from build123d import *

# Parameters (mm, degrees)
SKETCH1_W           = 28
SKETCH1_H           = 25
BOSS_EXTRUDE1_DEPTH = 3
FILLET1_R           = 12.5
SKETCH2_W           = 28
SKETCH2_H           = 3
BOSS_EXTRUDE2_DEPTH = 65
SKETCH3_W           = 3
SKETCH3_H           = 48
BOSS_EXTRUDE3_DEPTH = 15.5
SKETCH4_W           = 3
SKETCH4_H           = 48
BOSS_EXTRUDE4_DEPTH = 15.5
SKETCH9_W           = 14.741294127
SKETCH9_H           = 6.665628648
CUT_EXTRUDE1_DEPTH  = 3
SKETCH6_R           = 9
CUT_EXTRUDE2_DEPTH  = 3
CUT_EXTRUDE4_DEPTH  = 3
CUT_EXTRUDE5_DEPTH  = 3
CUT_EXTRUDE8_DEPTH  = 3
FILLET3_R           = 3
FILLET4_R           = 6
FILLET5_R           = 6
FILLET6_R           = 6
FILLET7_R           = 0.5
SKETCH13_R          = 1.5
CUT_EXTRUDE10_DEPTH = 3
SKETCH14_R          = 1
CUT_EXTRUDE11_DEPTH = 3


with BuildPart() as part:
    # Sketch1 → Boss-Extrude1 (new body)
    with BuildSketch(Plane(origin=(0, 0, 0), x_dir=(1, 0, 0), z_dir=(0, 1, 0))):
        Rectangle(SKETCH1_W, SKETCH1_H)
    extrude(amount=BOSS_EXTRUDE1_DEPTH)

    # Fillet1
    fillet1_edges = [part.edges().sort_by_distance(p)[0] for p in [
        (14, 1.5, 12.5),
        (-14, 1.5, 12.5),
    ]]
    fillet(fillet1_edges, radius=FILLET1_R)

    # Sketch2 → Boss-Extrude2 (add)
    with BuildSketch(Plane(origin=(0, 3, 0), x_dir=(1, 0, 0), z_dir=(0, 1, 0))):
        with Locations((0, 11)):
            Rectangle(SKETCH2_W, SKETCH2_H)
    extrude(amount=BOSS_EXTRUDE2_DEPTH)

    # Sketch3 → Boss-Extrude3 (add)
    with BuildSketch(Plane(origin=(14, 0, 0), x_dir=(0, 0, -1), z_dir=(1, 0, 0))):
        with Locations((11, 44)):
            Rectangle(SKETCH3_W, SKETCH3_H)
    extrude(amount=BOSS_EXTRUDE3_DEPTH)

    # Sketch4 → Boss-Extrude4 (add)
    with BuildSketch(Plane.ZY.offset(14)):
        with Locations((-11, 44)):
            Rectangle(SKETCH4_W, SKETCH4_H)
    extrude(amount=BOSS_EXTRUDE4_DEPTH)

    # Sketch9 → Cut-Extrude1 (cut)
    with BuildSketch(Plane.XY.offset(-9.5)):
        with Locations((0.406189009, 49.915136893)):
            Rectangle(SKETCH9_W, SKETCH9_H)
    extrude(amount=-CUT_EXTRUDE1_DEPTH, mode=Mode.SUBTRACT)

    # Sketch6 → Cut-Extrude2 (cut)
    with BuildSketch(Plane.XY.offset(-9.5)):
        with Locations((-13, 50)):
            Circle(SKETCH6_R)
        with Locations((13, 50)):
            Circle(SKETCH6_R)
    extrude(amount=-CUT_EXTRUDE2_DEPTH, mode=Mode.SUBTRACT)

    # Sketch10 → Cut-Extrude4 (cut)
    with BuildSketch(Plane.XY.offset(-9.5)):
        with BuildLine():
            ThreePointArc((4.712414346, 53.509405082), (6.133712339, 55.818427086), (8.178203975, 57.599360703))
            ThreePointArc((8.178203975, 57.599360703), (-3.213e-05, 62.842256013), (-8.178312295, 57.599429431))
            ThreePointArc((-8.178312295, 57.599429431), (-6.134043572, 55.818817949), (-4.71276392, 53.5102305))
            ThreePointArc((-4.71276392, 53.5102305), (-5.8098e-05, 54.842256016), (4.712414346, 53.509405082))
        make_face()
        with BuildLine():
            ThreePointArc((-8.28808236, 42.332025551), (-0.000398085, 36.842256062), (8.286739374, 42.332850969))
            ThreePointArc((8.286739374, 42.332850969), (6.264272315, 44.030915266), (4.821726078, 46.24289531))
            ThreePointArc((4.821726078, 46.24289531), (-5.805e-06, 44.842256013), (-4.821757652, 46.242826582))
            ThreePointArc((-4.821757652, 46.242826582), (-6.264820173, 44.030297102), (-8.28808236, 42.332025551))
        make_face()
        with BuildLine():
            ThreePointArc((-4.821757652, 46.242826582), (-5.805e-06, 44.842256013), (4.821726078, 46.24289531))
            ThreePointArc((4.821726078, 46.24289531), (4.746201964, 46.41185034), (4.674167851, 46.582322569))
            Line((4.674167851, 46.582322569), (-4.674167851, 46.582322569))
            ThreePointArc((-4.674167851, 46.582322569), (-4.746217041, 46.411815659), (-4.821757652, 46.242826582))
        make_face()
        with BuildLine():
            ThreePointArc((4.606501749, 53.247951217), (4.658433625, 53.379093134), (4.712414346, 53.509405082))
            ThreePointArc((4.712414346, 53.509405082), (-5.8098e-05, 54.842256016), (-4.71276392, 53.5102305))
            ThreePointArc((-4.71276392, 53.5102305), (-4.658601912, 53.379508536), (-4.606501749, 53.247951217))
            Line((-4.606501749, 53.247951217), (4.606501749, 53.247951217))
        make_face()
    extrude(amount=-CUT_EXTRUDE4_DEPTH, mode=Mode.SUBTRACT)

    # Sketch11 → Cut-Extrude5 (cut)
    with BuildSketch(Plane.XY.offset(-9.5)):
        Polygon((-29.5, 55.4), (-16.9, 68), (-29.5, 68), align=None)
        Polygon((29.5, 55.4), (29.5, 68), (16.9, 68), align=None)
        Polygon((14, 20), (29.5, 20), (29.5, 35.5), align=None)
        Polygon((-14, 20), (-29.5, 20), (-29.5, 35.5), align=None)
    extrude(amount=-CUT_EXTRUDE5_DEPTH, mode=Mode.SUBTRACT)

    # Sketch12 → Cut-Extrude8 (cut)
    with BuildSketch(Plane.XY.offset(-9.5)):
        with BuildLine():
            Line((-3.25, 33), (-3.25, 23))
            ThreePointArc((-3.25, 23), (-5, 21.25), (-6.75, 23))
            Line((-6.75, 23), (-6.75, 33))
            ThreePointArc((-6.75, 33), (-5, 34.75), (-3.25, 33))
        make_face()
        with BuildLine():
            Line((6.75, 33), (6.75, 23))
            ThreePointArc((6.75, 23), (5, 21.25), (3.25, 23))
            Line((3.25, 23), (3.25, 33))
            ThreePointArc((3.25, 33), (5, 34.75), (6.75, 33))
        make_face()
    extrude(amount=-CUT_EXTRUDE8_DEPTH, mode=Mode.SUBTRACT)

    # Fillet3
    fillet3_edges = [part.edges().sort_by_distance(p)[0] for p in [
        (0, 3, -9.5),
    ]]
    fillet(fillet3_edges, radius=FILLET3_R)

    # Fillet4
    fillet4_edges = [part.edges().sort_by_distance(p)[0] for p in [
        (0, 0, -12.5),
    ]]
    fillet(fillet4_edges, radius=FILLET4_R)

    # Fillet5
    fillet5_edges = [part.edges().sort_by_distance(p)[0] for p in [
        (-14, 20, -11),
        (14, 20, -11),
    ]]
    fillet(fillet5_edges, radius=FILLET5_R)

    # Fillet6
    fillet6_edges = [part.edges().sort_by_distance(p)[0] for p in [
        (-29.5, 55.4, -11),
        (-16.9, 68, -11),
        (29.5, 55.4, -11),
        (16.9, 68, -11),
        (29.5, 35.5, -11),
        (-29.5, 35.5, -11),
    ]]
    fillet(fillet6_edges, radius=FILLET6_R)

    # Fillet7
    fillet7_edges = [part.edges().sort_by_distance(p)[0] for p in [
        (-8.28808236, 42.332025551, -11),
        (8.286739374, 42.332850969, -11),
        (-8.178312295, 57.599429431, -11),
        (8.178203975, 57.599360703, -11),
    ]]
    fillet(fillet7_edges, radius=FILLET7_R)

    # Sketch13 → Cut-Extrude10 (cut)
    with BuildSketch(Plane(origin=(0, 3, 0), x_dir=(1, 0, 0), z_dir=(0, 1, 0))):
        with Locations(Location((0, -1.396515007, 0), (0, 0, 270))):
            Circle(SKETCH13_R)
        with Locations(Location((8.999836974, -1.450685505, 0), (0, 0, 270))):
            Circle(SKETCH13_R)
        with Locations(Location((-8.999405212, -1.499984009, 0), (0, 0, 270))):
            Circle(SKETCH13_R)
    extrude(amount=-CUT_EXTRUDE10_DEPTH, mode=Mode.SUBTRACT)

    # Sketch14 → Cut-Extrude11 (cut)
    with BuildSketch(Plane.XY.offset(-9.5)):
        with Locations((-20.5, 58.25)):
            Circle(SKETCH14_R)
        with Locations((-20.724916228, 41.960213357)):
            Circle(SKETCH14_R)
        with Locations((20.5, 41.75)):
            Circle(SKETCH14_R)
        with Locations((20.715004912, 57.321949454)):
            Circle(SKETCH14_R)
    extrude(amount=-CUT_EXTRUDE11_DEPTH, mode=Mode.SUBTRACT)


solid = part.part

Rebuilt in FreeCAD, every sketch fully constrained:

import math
import FreeCAD as App
import Part
import Sketcher
from FreeCAD import Vector
Q = App.Units.Quantity


def edges_at(feature, points):
    """Names of the edges that pass closest to the given points."""
    edges = feature.Shape.Edges
    near = lambda p: min(range(len(edges)), key=lambda i: edges[i].distToShape(Part.Vertex(*p))[0])
    return sorted({f"Edge{near(p) + 1}" for p in points})


def add_polygon(sketch, points):
    """Adds a closed chain of lines whose ends are joined by coincident constraints."""
    first, n = sketch.GeometryCount, len(points)
    for a, b in zip(points, points[1:] + points[:1]):
        sketch.addGeometry(Part.LineSegment(App.Vector(*a, 0), App.Vector(*b, 0)), False)
    for i in range(n):
        sketch.addConstraint(Sketcher.Constraint("Coincident", first + i, 2, first + (i + 1) % n, 1))

doc = App.newDocument("Part")
body = doc.addObject("PartDesign::Body", "Body")

# Sketch on XZ plane
sketch1 = doc.addObject("Sketcher::SketchObject", "Sketch")
body.addObject(sketch1)
sketch1.AttachmentSupport = (doc.XZ_Plane, [""])
sketch1.MapMode = "FlatFace"
add_polygon(sketch1, [(-14, -12), (-14, 12), (14, 12), (14, -12)])  # lines 0-3
sketch1.addConstraint(Sketcher.Constraint("Vertical", 0))
sketch1.addConstraint(Sketcher.Constraint("Horizontal", 1))
sketch1.addConstraint(Sketcher.Constraint("Vertical", 2))
sketch1.addConstraint(Sketcher.Constraint("Horizontal", 3))
sketch1.addConstraint(Sketcher.Constraint("Symmetric", 0, 2, 2, 2, -1, 1))
sketch1.addConstraint(Sketcher.Constraint("DistanceX", 1, 1, 1, 2, Q("28 mm")))
sketch1.addConstraint(Sketcher.Constraint("DistanceY", 0, 1, 0, 2, Q("25 mm")))
pad1 = doc.addObject("PartDesign::Pad", "Pad")
body.addObject(pad1)
pad1.Profile = sketch1
pad1.Length = 3
pad1.Reversed = True
doc.recompute()

fillet = doc.addObject("PartDesign::Fillet", "Fillet")
body.addObject(fillet)
fillet.Base = (pad1, edges_at(pad1, [(14, 1.5, 12.5), (-14, 1.5, 12.5)]))
fillet.Radius = 12.5

# Sketch on XZ plane
sketch2 = doc.addObject("Sketcher::SketchObject", "Sketch001")
body.addObject(sketch2)
sketch2.AttachmentSupport = (doc.XZ_Plane, [""])
sketch2.MapMode = "FlatFace"
sketch2.AttachmentOffset = App.Placement(Vector(0, 0, -3), App.Rotation())
add_polygon(sketch2, [(-14, -12.5), (-14, -9.5), (14, -9.5), (14, -12.5)])  # lines 0-3
sketch2.addConstraint(Sketcher.Constraint("Vertical", 0))
sketch2.addConstraint(Sketcher.Constraint("Horizontal", 1))
sketch2.addConstraint(Sketcher.Constraint("Vertical", 2))
sketch2.addConstraint(Sketcher.Constraint("Horizontal", 3))
sketch2.addConstraint(Sketcher.Constraint("DistanceX", 1, 1, 1, 2, Q("28 mm")))
sketch2.addConstraint(Sketcher.Constraint("DistanceY", 0, 1, 0, 2, Q("3 mm")))
sketch2.addConstraint(Sketcher.Constraint("DistanceX", 0, 2, -1, 1, Q("14 mm")))
sketch2.addConstraint(Sketcher.Constraint("DistanceY", 0, 2, -1, 1, Q("9.5 mm")))
pad2 = doc.addObject("PartDesign::Pad", "Pad001")
body.addObject(pad2)
pad2.Profile = sketch2
pad2.Length = 65
pad2.Reversed = True

# Sketch on YZ plane
sketch3 = doc.addObject("Sketcher::SketchObject", "Sketch002")
body.addObject(sketch3)
sketch3.AttachmentSupport = (doc.YZ_Plane, [""])
sketch3.MapMode = "FlatFace"
sketch3.AttachmentOffset = App.Placement(Vector(0, 0, 14), App.Rotation())
add_polygon(sketch3, [(68, -9.5), (20, -9.5), (20, -12.5), (68, -12.5)])  # lines 0-3
sketch3.addConstraint(Sketcher.Constraint("Horizontal", 0))
sketch3.addConstraint(Sketcher.Constraint("Vertical", 1))
sketch3.addConstraint(Sketcher.Constraint("Horizontal", 2))
sketch3.addConstraint(Sketcher.Constraint("Vertical", 3))
sketch3.addConstraint(Sketcher.Constraint("DistanceX", 0, 2, 0, 1, Q("48 mm")))
sketch3.addConstraint(Sketcher.Constraint("DistanceY", 1, 2, 1, 1, Q("3 mm")))
sketch3.addConstraint(Sketcher.Constraint("DistanceX", -1, 1, 0, 2, Q("20 mm")))
sketch3.addConstraint(Sketcher.Constraint("DistanceY", 0, 2, -1, 1, Q("9.5 mm")))
pad3 = doc.addObject("PartDesign::Pad", "Pad002")
body.addObject(pad3)
pad3.Profile = sketch3
pad3.Length = 15.5

# Sketch on YZ plane
sketch4 = doc.addObject("Sketcher::SketchObject", "Sketch003")
body.addObject(sketch4)
sketch4.AttachmentSupport = (doc.YZ_Plane, [""])
sketch4.MapMode = "FlatFace"
sketch4.AttachmentOffset = App.Placement(Vector(0, 0, -14), App.Rotation())
add_polygon(sketch4, [(68, -12.5), (20, -12.5), (20, -9.5), (68, -9.5)])  # lines 0-3
sketch4.addConstraint(Sketcher.Constraint("Horizontal", 0))
sketch4.addConstraint(Sketcher.Constraint("Vertical", 1))
sketch4.addConstraint(Sketcher.Constraint("Horizontal", 2))
sketch4.addConstraint(Sketcher.Constraint("Vertical", 3))
sketch4.addConstraint(Sketcher.Constraint("DistanceX", 0, 2, 0, 1, Q("48 mm")))
sketch4.addConstraint(Sketcher.Constraint("DistanceY", 1, 1, 1, 2, Q("3 mm")))
sketch4.addConstraint(Sketcher.Constraint("DistanceX", -1, 1, 0, 2, Q("20 mm")))
sketch4.addConstraint(Sketcher.Constraint("DistanceY", 0, 2, -1, 1, Q("12.5 mm")))
pad4 = doc.addObject("PartDesign::Pad", "Pad003")
body.addObject(pad4)
pad4.Profile = sketch4
pad4.Length = 15.5
pad4.Reversed = True

# Sketch on XY plane
sketch5 = doc.addObject("Sketcher::SketchObject", "Sketch004")
body.addObject(sketch5)
sketch5.AttachmentSupport = (doc.XY_Plane, [""])
sketch5.MapMode = "FlatFace"
sketch5.AttachmentOffset = App.Placement(Vector(0, 0, -9.5), App.Rotation())
add_polygon(sketch5, [(-7, 53), (-7, 47), (8, 47), (8, 53)])  # lines 0-3
sketch5.addConstraint(Sketcher.Constraint("Vertical", 0))
sketch5.addConstraint(Sketcher.Constraint("Horizontal", 1))
sketch5.addConstraint(Sketcher.Constraint("Vertical", 2))
sketch5.addConstraint(Sketcher.Constraint("Horizontal", 3))
sketch5.addConstraint(Sketcher.Constraint("DistanceY", 0, 2, 0, 1, Q("6.665629 mm")))
sketch5.addConstraint(Sketcher.Constraint("DistanceX", 1, 1, 1, 2, Q("14.741294 mm")))
sketch5.addConstraint(Sketcher.Constraint("DistanceX", 0, 2, -1, 1, Q("6.964458 mm")))
sketch5.addConstraint(Sketcher.Constraint("DistanceY", -1, 1, 2, 2, Q("53.247951 mm")))
pocket1 = doc.addObject("PartDesign::Pocket", "Pocket")
body.addObject(pocket1)
pocket1.Profile = sketch5
pocket1.Length = 3

# Sketch on XY plane
sketch6 = doc.addObject("Sketcher::SketchObject", "Sketch005")
body.addObject(sketch6)
sketch6.AttachmentSupport = (doc.XY_Plane, [""])
sketch6.MapMode = "FlatFace"
sketch6.AttachmentOffset = App.Placement(Vector(0, 0, -9.5), App.Rotation())
sketch6.addGeometry(Part.Circle(Vector(-13, 50, 0), Vector(0, 0, 1), 9), False)
sketch6.addGeometry(Part.Circle(Vector(13, 50, 0), Vector(0, 0, 1), 9), False)
sketch6.addConstraint(Sketcher.Constraint("Equal", 0, 1))
sketch6.addConstraint(Sketcher.Constraint("Symmetric", 0, 3, 1, 3, -2))
sketch6.addConstraint(Sketcher.Constraint("Diameter", 0, Q("18 mm")))
sketch6.addConstraint(Sketcher.Constraint("DistanceX", 0, 3, -1, 1, Q("13 mm")))
sketch6.addConstraint(Sketcher.Constraint("DistanceY", -1, 1, 0, 3, Q("50 mm")))
pocket2 = doc.addObject("PartDesign::Pocket", "Pocket001")
body.addObject(pocket2)
pocket2.Profile = sketch6
pocket2.Length = 3

# Sketch on XY plane
sketch7 = doc.addObject("Sketcher::SketchObject", "Sketch006")
body.addObject(sketch7)
sketch7.AttachmentSupport = (doc.XY_Plane, [""])
sketch7.MapMode = "FlatFace"
sketch7.AttachmentOffset = App.Placement(Vector(0, 0, -9.5), App.Rotation())
sketch7.addGeometry(Part.ArcOfCircle(Part.Circle(Vector(13, 50, 0), Vector(0, 0, 1), 9), math.radians(122), math.radians(157)), False)
sketch7.addGeometry(Part.ArcOfCircle(Part.Circle(Vector(0, 53.84, 0), Vector(0, 0, 1), 9), math.radians(25), math.radians(155)), False)
sketch7.addGeometry(Part.ArcOfCircle(Part.Circle(Vector(-13, 50, 0), Vector(0, 0, 1), 9), math.radians(23), math.radians(58)), False)
sketch7.addGeometry(Part.ArcOfCircle(Part.Circle(Vector(-13, 50, 0), Vector(0, 0, 1), 9), math.radians(21.15), math.radians(22.96)), False)
sketch7.addGeometry(Part.LineSegment(Vector(-4.61, 53.25, 0), Vector(4.61, 53.25, 0)), False)
sketch7.addGeometry(Part.ArcOfCircle(Part.Circle(Vector(13, 50, 0), Vector(0, 0, 1), 9), math.radians(157.05), math.radians(158.85)), False)
sketch7.addGeometry(Part.ArcOfCircle(Part.Circle(Vector(0, 45.84, 0), Vector(0, 0, 1), 9), math.radians(-157), math.radians(-23)), False)
sketch7.addGeometry(Part.ArcOfCircle(Part.Circle(Vector(13, 50, 0), Vector(0, 0, 1), 9), math.radians(-155), math.radians(-122)), False)
sketch7.addGeometry(Part.ArcOfCircle(Part.Circle(Vector(13, 50, 0), Vector(0, 0, 1), 9), math.radians(-157.68), math.radians(-155.33)), False)
sketch7.addGeometry(Part.LineSegment(Vector(4.67, 46.58, 0), Vector(-4.67, 46.58, 0)), False)
sketch7.addGeometry(Part.ArcOfCircle(Part.Circle(Vector(-13, 50, 0), Vector(0, 0, 1), 9), math.radians(-24.67), math.radians(-22.32)), False)
sketch7.addGeometry(Part.ArcOfCircle(Part.Circle(Vector(-13, 50, 0), Vector(0, 0, 1), 9), math.radians(-58), math.radians(-25)), False)
sketch7.addConstraint(Sketcher.Constraint("Coincident", 0, 1, 1, 1))
sketch7.addConstraint(Sketcher.Constraint("Coincident", 1, 2, 2, 2))
sketch7.addConstraint(Sketcher.Constraint("Tangent", 2, 1, 3, 2))
sketch7.addConstraint(Sketcher.Constraint("Coincident", 3, 1, 4, 1))
sketch7.addConstraint(Sketcher.Constraint("Coincident", 4, 2, 5, 2))
sketch7.addConstraint(Sketcher.Constraint("Tangent", 5, 1, 0, 2))
sketch7.addConstraint(Sketcher.Constraint("Coincident", 6, 2, 7, 2))
sketch7.addConstraint(Sketcher.Constraint("Tangent", 7, 1, 8, 2))
sketch7.addConstraint(Sketcher.Constraint("Coincident", 8, 1, 9, 1))
sketch7.addConstraint(Sketcher.Constraint("Coincident", 9, 2, 10, 2))
sketch7.addConstraint(Sketcher.Constraint("Tangent", 10, 1, 11, 2))
sketch7.addConstraint(Sketcher.Constraint("Coincident", 11, 1, 6, 1))
sketch7.addConstraint(Sketcher.Constraint("Horizontal", 4))
sketch7.addConstraint(Sketcher.Constraint("Horizontal", 9))
sketch7.addConstraint(Sketcher.Constraint("Coincident", 7, 3, 0, 3))
sketch7.addConstraint(Sketcher.Constraint("Coincident", 10, 3, 2, 3))
sketch7.addConstraint(Sketcher.Constraint("Equal", 0, 1))
sketch7.addConstraint(Sketcher.Constraint("Equal", 1, 2))
sketch7.addConstraint(Sketcher.Constraint("Equal", 2, 3))
sketch7.addConstraint(Sketcher.Constraint("Equal", 2, 5))
sketch7.addConstraint(Sketcher.Constraint("Equal", 5, 6))
sketch7.addConstraint(Sketcher.Constraint("Equal", 6, 7))
sketch7.addConstraint(Sketcher.Constraint("Equal", 7, 8))
sketch7.addConstraint(Sketcher.Constraint("Equal", 8, 10))
sketch7.addConstraint(Sketcher.Constraint("Equal", 10, 11))
sketch7.addConstraint(Sketcher.Constraint("Symmetric", 0, 3, 2, 3, -2))
sketch7.addConstraint(Sketcher.Constraint("Radius", 0, Q("9 mm")))
sketch7.addConstraint(Sketcher.Constraint("DistanceX", -1, 1, 0, 3, Q("13 mm")))
sketch7.addConstraint(Sketcher.Constraint("DistanceY", -1, 1, 0, 3, Q("50 mm")))
sketch7.addConstraint(Sketcher.Constraint("DistanceY", 6, 3, 1, 3, Q("8 mm")))
sketch7.addConstraint(Sketcher.Constraint("DistanceX", 3, 1, -1, 1, Q("4.606502 mm")))
sketch7.addConstraint(Sketcher.Constraint("DistanceY", 2, 1, 1, 2, Q("4.089199 mm")))
sketch7.addConstraint(Sketcher.Constraint("DistanceY", 11, 1, 10, 1, Q("3.910801 mm")))
sketch7.addConstraint(Sketcher.Constraint("DistanceX", 9, 2, 9, 1, Q("9.348336 mm")))
sketch7.addConstraint(Sketcher.Constraint("DistanceY", -1, 1, 0, 1, Q("57.599361 mm")))
sketch7.addConstraint(Sketcher.Constraint("DistanceY", -1, 1, 1, 2, Q("57.599429 mm")))
sketch7.addConstraint(Sketcher.Constraint("DistanceX", -1, 1, 6, 2, Q("8.286739 mm")))
sketch7.addConstraint(Sketcher.Constraint("DistanceY", 5, 1, 1, 3, Q("0.332851 mm")))
sketch7.addConstraint(Sketcher.Constraint("DistanceY", 6, 3, 7, 1, Q("0.400639 mm")))
pocket3 = doc.addObject("PartDesign::Pocket", "Pocket002")
body.addObject(pocket3)
pocket3.Profile = sketch7
pocket3.Length = 3

# Sketch on XY plane
sketch8 = doc.addObject("Sketcher::SketchObject", "Sketch007")
body.addObject(sketch8)
sketch8.AttachmentSupport = (doc.XY_Plane, [""])
sketch8.MapMode = "FlatFace"
sketch8.AttachmentOffset = App.Placement(Vector(0, 0, -9.5), App.Rotation())
add_polygon(sketch8, [(-30, 55), (-17, 68), (-30, 68)])  # lines 0-2
add_polygon(sketch8, [(30, 55), (30, 68), (17, 68)])  # lines 3-5
add_polygon(sketch8, [(14, 20), (30, 20), (30, 36)])  # lines 6-8
add_polygon(sketch8, [(-30, 20), (-14, 20), (-30, 36)])  # lines 9-11
sketch8.addConstraint(Sketcher.Constraint("Horizontal", 1))
sketch8.addConstraint(Sketcher.Constraint("Vertical", 2))
sketch8.addConstraint(Sketcher.Constraint("Vertical", 3))
sketch8.addConstraint(Sketcher.Constraint("Horizontal", 4))
sketch8.addConstraint(Sketcher.Constraint("Horizontal", 6))
sketch8.addConstraint(Sketcher.Constraint("Vertical", 7))
sketch8.addConstraint(Sketcher.Constraint("Horizontal", 9))
sketch8.addConstraint(Sketcher.Constraint("Vertical", 11))
sketch8.addConstraint(Sketcher.Constraint("Symmetric", 1, 2, 3, 2, -2))
sketch8.addConstraint(Sketcher.Constraint("Symmetric", 8, 2, 9, 2, -2))
sketch8.addConstraint(Sketcher.Constraint("Symmetric", 7, 2, 10, 2, -2))
sketch8.addConstraint(Sketcher.Constraint("Perpendicular", 0, 5))
sketch8.addConstraint(Sketcher.Constraint("Perpendicular", 5, 8))
sketch8.addConstraint(Sketcher.Constraint("Perpendicular", 8, 10))
sketch8.addConstraint(Sketcher.Constraint("Horizontal", 2, 2, 5, 2))
sketch8.addConstraint(Sketcher.Constraint("Vertical", 5, 2, 6, 2))
sketch8.addConstraint(Sketcher.Constraint("DistanceX", 1, 2, 1, 1, Q("12.6 mm")))
sketch8.addConstraint(Sketcher.Constraint("DistanceX", 6, 1, 6, 2, Q("15.5 mm")))
sketch8.addConstraint(Sketcher.Constraint("DistanceY", -1, 1, 0, 2, Q("68 mm")))
sketch8.addConstraint(Sketcher.Constraint("DistanceY", -1, 1, 6, 2, Q("20 mm")))
sketch8.addConstraint(Sketcher.Constraint("DistanceX", -1, 1, 8, 2, Q("14 mm")))
pocket4 = doc.addObject("PartDesign::Pocket", "Pocket003")
body.addObject(pocket4)
pocket4.Profile = sketch8
pocket4.Length = 3

# Sketch on XY plane
sketch9 = doc.addObject("Sketcher::SketchObject", "Sketch008")
body.addObject(sketch9)
sketch9.AttachmentSupport = (doc.XY_Plane, [""])
sketch9.MapMode = "FlatFace"
sketch9.AttachmentOffset = App.Placement(Vector(0, 0, -9.5), App.Rotation())
sketch9.addGeometry(Part.LineSegment(Vector(-3.2, 23, 0), Vector(-3.2, 33, 0)), False)
sketch9.addGeometry(Part.ArcOfCircle(Part.Circle(Vector(-5, 33, 0), Vector(0, 0, 1), 1.8), math.radians(0), math.radians(180)), False)
sketch9.addGeometry(Part.LineSegment(Vector(-6.8, 33, 0), Vector(-6.8, 23, 0)), False)
sketch9.addGeometry(Part.ArcOfCircle(Part.Circle(Vector(-5, 23, 0), Vector(0, 0, 1), 1.8), math.radians(180), math.radians(360)), False)
sketch9.addGeometry(Part.LineSegment(Vector(6.8, 23, 0), Vector(6.8, 33, 0)), False)
sketch9.addGeometry(Part.ArcOfCircle(Part.Circle(Vector(5, 33, 0), Vector(0, 0, 1), 1.8), math.radians(0), math.radians(180)), False)
sketch9.addGeometry(Part.LineSegment(Vector(3.2, 33, 0), Vector(3.2, 23, 0)), False)
sketch9.addGeometry(Part.ArcOfCircle(Part.Circle(Vector(5, 23, 0), Vector(0, 0, 1), 1.8), math.radians(180), math.radians(360)), False)
sketch9.addConstraint(Sketcher.Constraint("Tangent", 0, 2, 1, 1))
sketch9.addConstraint(Sketcher.Constraint("Tangent", 1, 2, 2, 1))
sketch9.addConstraint(Sketcher.Constraint("Tangent", 2, 2, 3, 1))
sketch9.addConstraint(Sketcher.Constraint("Tangent", 3, 2, 0, 1))
sketch9.addConstraint(Sketcher.Constraint("Tangent", 4, 2, 5, 1))
sketch9.addConstraint(Sketcher.Constraint("Tangent", 5, 2, 6, 1))
sketch9.addConstraint(Sketcher.Constraint("Tangent", 6, 2, 7, 1))
sketch9.addConstraint(Sketcher.Constraint("Tangent", 7, 2, 4, 1))
sketch9.addConstraint(Sketcher.Constraint("Vertical", 0))
sketch9.addConstraint(Sketcher.Constraint("Vertical", 2))
sketch9.addConstraint(Sketcher.Constraint("Vertical", 4))
sketch9.addConstraint(Sketcher.Constraint("Vertical", 6))
sketch9.addConstraint(Sketcher.Constraint("Equal", 3, 5))
sketch9.addConstraint(Sketcher.Constraint("Symmetric", 1, 3, 5, 3, -2))
sketch9.addConstraint(Sketcher.Constraint("Horizontal", 3, 3, 7, 3))
sketch9.addConstraint(Sketcher.Constraint("DistanceY", 0, 1, 0, 2, Q("10 mm")))
sketch9.addConstraint(Sketcher.Constraint("Radius", 1, Q("1.75 mm")))
sketch9.addConstraint(Sketcher.Constraint("DistanceX", 1, 3, -1, 1, Q("5 mm")))
sketch9.addConstraint(Sketcher.Constraint("DistanceY", -1, 1, 1, 3, Q("33 mm")))
pocket5 = doc.addObject("PartDesign::Pocket", "Pocket004")
body.addObject(pocket5)
pocket5.Profile = sketch9
pocket5.Length = 3
doc.recompute()

fillet2 = doc.addObject("PartDesign::Fillet", "Fillet001")
body.addObject(fillet2)
fillet2.Base = (pocket5, edges_at(pocket5, [(0, 3, -9.5)]))
fillet2.Radius = 3
doc.recompute()

fillet3 = doc.addObject("PartDesign::Fillet", "Fillet002")
body.addObject(fillet3)
fillet3.Base = (fillet2, edges_at(fillet2, [(0, 0, -12.5)]))
fillet3.Radius = 6
doc.recompute()

fillet4 = doc.addObject("PartDesign::Fillet", "Fillet003")
body.addObject(fillet4)
fillet4.Base = (fillet3, edges_at(fillet3, [(-14, 20, -11), (14, 20, -11)]))
fillet4.Radius = 6
doc.recompute()

fillet5 = doc.addObject("PartDesign::Fillet", "Fillet004")
body.addObject(fillet5)
fillet5.Base = (fillet4, edges_at(fillet4, [
    (-29.5, 55.4, -11),
    (-16.9, 68, -11),
    (29.5, 55.4, -11),
    (16.9, 68, -11),
    (29.5, 35.5, -11),
    (-29.5, 35.5, -11),
]))
fillet5.Radius = 6
doc.recompute()

fillet6 = doc.addObject("PartDesign::Fillet", "Fillet005")
body.addObject(fillet6)
fillet6.Base = (fillet5, edges_at(fillet5, [
    (-8.288, 42.332, -11),
    (8.287, 42.333, -11),
    (-8.178, 57.599, -11),
    (8.178, 57.599, -11),
]))
fillet6.Radius = 0.5

# Sketch on XZ plane
sketch10 = doc.addObject("Sketcher::SketchObject", "Sketch009")
body.addObject(sketch10)
sketch10.AttachmentSupport = (doc.XZ_Plane, [""])
sketch10.MapMode = "FlatFace"
sketch10.AttachmentOffset = App.Placement(Vector(0, 0, -3), App.Rotation())
sketch10.addGeometry(Part.Circle(Vector(0, 1.4, 0), Vector(0, 0, 1), 1.5), False)
sketch10.addGeometry(Part.Circle(Vector(9, 1.5, 0), Vector(0, 0, 1), 1.5), False)
sketch10.addGeometry(Part.Circle(Vector(-9, 1.5, 0), Vector(0, 0, 1), 1.5), False)
sketch10.addConstraint(Sketcher.Constraint("Equal", 0, 1))
sketch10.addConstraint(Sketcher.Constraint("Equal", 1, 2))
sketch10.addConstraint(Sketcher.Constraint("PointOnObject", 0, 3, -2))
sketch10.addConstraint(Sketcher.Constraint("Diameter", 0, Q("3 mm")))
sketch10.addConstraint(Sketcher.Constraint("DistanceY", 1, 3, 2, 3, Q("0.049299 mm")))
sketch10.addConstraint(Sketcher.Constraint("DistanceY", 0, 3, 1, 3, Q("0.05417 mm")))
sketch10.addConstraint(Sketcher.Constraint("DistanceY", -1, 1, 0, 3, Q("1.396515 mm")))
sketch10.addConstraint(Sketcher.Constraint("DistanceX", -1, 1, 1, 3, Q("8.999837 mm")))
sketch10.addConstraint(Sketcher.Constraint("DistanceX", 2, 3, -1, 1, Q("8.999405 mm")))
pocket6 = doc.addObject("PartDesign::Pocket", "Pocket005")
body.addObject(pocket6)
pocket6.Profile = sketch10
pocket6.Length = 3
pocket6.Reversed = True

# Sketch on XY plane
sketch11 = doc.addObject("Sketcher::SketchObject", "Sketch010")
body.addObject(sketch11)
sketch11.AttachmentSupport = (doc.XY_Plane, [""])
sketch11.MapMode = "FlatFace"
sketch11.AttachmentOffset = App.Placement(Vector(0, 0, -9.5), App.Rotation())
sketch11.addGeometry(Part.Circle(Vector(-20.5, 58.2, 0), Vector(0, 0, 1), 1), False)
sketch11.addGeometry(Part.Circle(Vector(-20.7, 42, 0), Vector(0, 0, 1), 1), False)
sketch11.addGeometry(Part.Circle(Vector(20.5, 41.8, 0), Vector(0, 0, 1), 1), False)
sketch11.addGeometry(Part.Circle(Vector(20.7, 57.3, 0), Vector(0, 0, 1), 1), False)
sketch11.addConstraint(Sketcher.Constraint("Equal", 0, 1))
sketch11.addConstraint(Sketcher.Constraint("Equal", 1, 2))
sketch11.addConstraint(Sketcher.Constraint("Equal", 2, 3))
sketch11.addConstraint(Sketcher.Constraint("Diameter", 0, Q("2 mm")))
sketch11.addConstraint(Sketcher.Constraint("DistanceX", 0, 3, 2, 3, Q("41 mm")))
sketch11.addConstraint(Sketcher.Constraint("DistanceX", 0, 3, -1, 1, Q("20.5 mm")))
sketch11.addConstraint(Sketcher.Constraint("DistanceY", 2, 3, 0, 3, Q("16.5 mm")))
sketch11.addConstraint(Sketcher.Constraint("DistanceY", -1, 1, 0, 3, Q("58.25 mm")))
sketch11.addConstraint(Sketcher.Constraint("DistanceY", -1, 1, 3, 3, Q("57.321949 mm")))
sketch11.addConstraint(Sketcher.Constraint("DistanceX", 1, 3, 3, 3, Q("41.439921 mm")))
sketch11.addConstraint(Sketcher.Constraint("DistanceX", 1, 3, -1, 1, Q("20.724916 mm")))
sketch11.addConstraint(Sketcher.Constraint("DistanceY", -1, 1, 1, 3, Q("41.960213 mm")))
pocket7 = doc.addObject("PartDesign::Pocket", "Pocket006")
body.addObject(pocket7)
pocket7.Profile = sketch11
pocket7.Length = 3

doc.recompute()
